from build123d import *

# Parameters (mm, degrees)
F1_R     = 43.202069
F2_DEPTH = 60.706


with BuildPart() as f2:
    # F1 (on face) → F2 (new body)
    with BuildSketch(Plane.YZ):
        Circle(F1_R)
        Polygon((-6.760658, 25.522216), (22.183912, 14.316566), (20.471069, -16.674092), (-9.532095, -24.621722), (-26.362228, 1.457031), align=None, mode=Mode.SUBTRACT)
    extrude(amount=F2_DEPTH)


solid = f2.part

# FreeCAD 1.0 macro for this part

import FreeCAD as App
import Part
import Sketcher
from FreeCAD import Vector
Q = App.Units.Quantity

doc = App.newDocument("Part")
body = doc.addObject("PartDesign::Body", "Body")

sketch1 = doc.addObject("Sketcher::SketchObject", "Sketch")
body.addObject(sketch1)
sketch1.AttachmentSupport = (doc.YZ_Plane, [""])
sketch1.MapMode = "FlatFace"
sketch1.addGeometry(Part.Circle(Vector(0, 0, 0), Vector(0, 0, 1), 43.202069), False)
sketch1.addGeometry(Part.LineSegment(Vector(-26.362228, 1.457031, 0), Vector(-6.760658, 25.522216, 0)), False)
sketch1.addGeometry(Part.LineSegment(Vector(-6.760658, 25.522216, 0), Vector(22.183912, 14.316566, 0)), False)
sketch1.addGeometry(Part.LineSegment(Vector(22.183912, 14.316566, 0), Vector(20.471069, -16.674092, 0)), False)
sketch1.addGeometry(Part.LineSegment(Vector(20.471069, -16.674092, 0), Vector(-9.532095, -24.621722, 0)), False)
sketch1.addGeometry(Part.LineSegment(Vector(-9.532095, -24.621722, 0), Vector(-26.362228, 1.457031, 0)), False)
sketch1.addConstraint(Sketcher.Constraint("Coincident", 1, 2, 2, 1))
sketch1.addConstraint(Sketcher.Constraint("Coincident", 2, 2, 3, 1))
sketch1.addConstraint(Sketcher.Constraint("Coincident", 3, 2, 4, 1))
sketch1.addConstraint(Sketcher.Constraint("Coincident", 4, 2, 5, 1))
sketch1.addConstraint(Sketcher.Constraint("Coincident", 5, 2, 1, 1))
sketch1.addConstraint(Sketcher.Constraint("Coincident", 0, 3, -1, 1))
sketch1.addConstraint(Sketcher.Constraint("Equal", 1, 2))
sketch1.addConstraint(Sketcher.Constraint("Equal", 2, 3))
sketch1.addConstraint(Sketcher.Constraint("Equal", 3, 4))
sketch1.addConstraint(Sketcher.Constraint("Equal", 4, 5))
sketch1.addConstraint(Sketcher.Constraint("Diameter", 0, Q("86.404138 mm")))
sketch1.addConstraint(Sketcher.Constraint("DistanceX", 1, 2, -1, 1, Q("6.760658 mm")))
sketch1.addConstraint(Sketcher.Constraint("DistanceX", -1, 1, 2, 2, Q("22.183912 mm")))
sketch1.addConstraint(Sketcher.Constraint("DistanceX", -1, 1, 3, 2, Q("20.471069 mm")))
sketch1.addConstraint(Sketcher.Constraint("DistanceY", 4, 2, -1, 1, Q("24.621722 mm")))
sketch1.addConstraint(Sketcher.Constraint("DistanceX", 5, 2, -1, 1, Q("26.362228 mm")))
sketch1.addConstraint(Sketcher.Constraint("DistanceY", -1, 1, 5, 2, Q("1.457031 mm")))
pad1 = doc.addObject("PartDesign::Pad", "Pad")
body.addObject(pad1)
pad1.Profile = sketch1
pad1.Length = Q("2.39 in")

doc.recompute()
